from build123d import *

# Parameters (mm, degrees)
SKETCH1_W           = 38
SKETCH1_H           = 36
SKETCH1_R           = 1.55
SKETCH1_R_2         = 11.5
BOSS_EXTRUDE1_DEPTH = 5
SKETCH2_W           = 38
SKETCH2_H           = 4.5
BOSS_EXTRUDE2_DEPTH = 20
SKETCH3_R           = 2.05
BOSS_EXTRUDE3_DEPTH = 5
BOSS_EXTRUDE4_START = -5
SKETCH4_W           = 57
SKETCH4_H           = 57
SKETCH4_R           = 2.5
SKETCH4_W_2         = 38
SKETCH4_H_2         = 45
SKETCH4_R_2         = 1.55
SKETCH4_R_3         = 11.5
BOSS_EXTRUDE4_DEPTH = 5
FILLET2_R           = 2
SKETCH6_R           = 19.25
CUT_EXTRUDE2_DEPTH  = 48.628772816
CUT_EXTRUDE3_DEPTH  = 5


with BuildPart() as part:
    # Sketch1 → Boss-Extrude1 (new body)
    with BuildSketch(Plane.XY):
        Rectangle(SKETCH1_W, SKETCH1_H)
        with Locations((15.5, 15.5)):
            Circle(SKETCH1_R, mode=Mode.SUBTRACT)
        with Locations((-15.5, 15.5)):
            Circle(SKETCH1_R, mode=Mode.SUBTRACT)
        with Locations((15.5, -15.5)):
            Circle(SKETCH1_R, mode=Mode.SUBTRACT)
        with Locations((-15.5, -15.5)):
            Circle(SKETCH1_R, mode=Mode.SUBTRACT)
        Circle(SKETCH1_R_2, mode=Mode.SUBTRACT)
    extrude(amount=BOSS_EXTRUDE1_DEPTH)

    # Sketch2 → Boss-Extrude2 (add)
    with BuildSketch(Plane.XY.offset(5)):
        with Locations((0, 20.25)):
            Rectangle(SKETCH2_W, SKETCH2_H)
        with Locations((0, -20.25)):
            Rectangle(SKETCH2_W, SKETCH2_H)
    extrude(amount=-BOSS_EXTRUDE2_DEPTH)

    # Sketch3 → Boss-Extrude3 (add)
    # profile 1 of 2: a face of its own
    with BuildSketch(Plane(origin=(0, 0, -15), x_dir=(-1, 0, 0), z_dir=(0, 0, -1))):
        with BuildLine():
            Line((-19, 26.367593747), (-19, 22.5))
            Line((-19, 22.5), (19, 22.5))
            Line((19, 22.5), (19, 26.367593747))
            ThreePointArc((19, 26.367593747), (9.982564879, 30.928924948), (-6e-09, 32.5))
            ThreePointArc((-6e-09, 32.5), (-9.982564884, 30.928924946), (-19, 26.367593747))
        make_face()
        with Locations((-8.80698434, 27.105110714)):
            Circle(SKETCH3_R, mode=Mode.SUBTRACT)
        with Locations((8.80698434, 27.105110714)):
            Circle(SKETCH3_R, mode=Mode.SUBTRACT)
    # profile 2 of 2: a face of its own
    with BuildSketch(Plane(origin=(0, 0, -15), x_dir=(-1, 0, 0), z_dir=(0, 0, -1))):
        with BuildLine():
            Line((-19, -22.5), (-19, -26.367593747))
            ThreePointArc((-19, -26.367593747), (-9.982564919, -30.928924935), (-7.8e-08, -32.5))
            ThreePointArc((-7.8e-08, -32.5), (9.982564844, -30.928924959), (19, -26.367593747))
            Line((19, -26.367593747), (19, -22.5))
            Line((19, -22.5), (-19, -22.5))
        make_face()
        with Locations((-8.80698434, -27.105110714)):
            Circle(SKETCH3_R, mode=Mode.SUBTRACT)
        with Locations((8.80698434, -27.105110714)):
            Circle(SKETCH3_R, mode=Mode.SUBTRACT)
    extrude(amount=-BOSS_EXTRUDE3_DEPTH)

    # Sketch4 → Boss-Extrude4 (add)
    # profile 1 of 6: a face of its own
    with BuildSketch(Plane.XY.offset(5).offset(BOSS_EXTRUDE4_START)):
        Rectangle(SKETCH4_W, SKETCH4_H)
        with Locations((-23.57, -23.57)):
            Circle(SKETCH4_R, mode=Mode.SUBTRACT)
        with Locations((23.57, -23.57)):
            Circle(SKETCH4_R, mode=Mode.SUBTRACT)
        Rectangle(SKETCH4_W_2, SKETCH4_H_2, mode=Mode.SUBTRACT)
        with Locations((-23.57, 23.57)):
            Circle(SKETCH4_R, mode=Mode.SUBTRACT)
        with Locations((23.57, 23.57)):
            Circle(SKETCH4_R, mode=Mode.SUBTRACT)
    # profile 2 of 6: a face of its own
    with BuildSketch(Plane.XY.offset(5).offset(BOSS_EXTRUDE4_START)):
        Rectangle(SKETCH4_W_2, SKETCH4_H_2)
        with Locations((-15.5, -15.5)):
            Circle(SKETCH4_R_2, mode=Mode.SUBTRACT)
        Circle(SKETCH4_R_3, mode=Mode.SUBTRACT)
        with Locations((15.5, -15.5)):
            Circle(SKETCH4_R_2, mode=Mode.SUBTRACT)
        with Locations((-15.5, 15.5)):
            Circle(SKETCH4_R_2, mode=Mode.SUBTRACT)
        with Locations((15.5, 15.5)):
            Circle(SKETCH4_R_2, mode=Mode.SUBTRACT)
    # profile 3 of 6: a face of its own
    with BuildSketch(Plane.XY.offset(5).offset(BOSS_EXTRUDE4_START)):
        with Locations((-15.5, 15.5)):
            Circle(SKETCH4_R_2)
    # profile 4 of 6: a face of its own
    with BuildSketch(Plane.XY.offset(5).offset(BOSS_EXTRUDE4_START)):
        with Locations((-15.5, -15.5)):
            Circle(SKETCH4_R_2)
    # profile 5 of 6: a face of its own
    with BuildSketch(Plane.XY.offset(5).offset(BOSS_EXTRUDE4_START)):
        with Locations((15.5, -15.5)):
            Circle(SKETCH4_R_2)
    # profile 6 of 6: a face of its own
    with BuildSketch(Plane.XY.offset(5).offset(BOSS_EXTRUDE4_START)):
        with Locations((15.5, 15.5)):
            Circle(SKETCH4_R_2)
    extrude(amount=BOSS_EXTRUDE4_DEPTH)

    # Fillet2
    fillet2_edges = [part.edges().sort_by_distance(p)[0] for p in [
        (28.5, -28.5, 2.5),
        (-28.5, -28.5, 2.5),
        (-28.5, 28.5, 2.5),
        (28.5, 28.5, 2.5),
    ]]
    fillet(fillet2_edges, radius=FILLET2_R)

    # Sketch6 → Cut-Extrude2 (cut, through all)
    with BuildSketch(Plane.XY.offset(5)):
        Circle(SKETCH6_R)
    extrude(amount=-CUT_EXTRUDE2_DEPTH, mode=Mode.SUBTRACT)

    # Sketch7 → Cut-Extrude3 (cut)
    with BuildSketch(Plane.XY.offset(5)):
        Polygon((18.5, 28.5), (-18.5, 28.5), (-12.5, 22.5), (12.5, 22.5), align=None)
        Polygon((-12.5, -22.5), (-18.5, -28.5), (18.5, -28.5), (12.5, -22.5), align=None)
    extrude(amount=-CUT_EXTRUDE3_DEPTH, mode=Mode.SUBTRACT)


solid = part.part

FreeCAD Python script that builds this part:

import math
import FreeCAD as App
import Part
import Sketcher


def edges_at(feature, points):
    """Names of the edges that pass closest to the given points."""
    edges = feature.Shape.Edges
    near = lambda p: min(range(len(edges)), key=lambda i: edges[i].distToShape(Part.Vertex(*p))[0])
    return sorted({f"Edge{near(p) + 1}" for p in points})

doc = App.newDocument("Part")
body = doc.addObject("PartDesign::Body", "Body")

# Sketch on XY plane
sketch1 = body.newObject("Sketcher::SketchObject", "Sketch")
sketch1.AttachmentSupport = (doc.getObject("XY_Plane"), [""])
sketch1.MapMode = "FlatFace"
sketch1.addGeometry(Part.LineSegment(App.Vector(-19, 18, 0), App.Vector(-19, -18, 0)), False)
sketch1.addGeometry(Part.LineSegment(App.Vector(-19, -18, 0), App.Vector(19, -18, 0)), False)
sketch1.addGeometry(Part.LineSegment(App.Vector(19, -18, 0), App.Vector(19, 18, 0)), False)
sketch1.addGeometry(Part.LineSegment(App.Vector(19, 18, 0), App.Vector(-19, 18, 0)), False)
sketch1.addGeometry(Part.Circle(App.Vector(-15.5, -15.5, 0), App.Vector(0, 0, 1), 1.6), False)
sketch1.addGeometry(Part.Circle(App.Vector(15.5, -15.5, 0), App.Vector(0, 0, 1), 1.6), False)
sketch1.addGeometry(Part.Circle(App.Vector(-15.5, 15.5, 0), App.Vector(0, 0, 1), 1.6), False)
sketch1.addGeometry(Part.Circle(App.Vector(0, 0, 0), App.Vector(0, 0, 1), 11.5), False)
sketch1.addGeometry(Part.Circle(App.Vector(15.5, 15.5, 0), App.Vector(0, 0, 1), 1.6), False)
sketch1.addConstraint(Sketcher.Constraint("Coincident", 0, 2, 1, 1))
sketch1.addConstraint(Sketcher.Constraint("Coincident", 1, 2, 2, 1))
sketch1.addConstraint(Sketcher.Constraint("Coincident", 2, 2, 3, 1))
sketch1.addConstraint(Sketcher.Constraint("Coincident", 3, 2, 0, 1))
sketch1.addConstraint(Sketcher.Constraint("Vertical", 0))
sketch1.addConstraint(Sketcher.Constraint("Horizontal", 1))
sketch1.addConstraint(Sketcher.Constraint("Vertical", 2))
sketch1.addConstraint(Sketcher.Constraint("Horizontal", 3))
sketch1.addConstraint(Sketcher.Constraint("Coincident", 7, 3, -1, 1))
sketch1.addConstraint(Sketcher.Constraint("Equal", 4, 5))
sketch1.addConstraint(Sketcher.Constraint("Equal", 5, 6))
sketch1.addConstraint(Sketcher.Constraint("Equal", 6, 8))
sketch1.addConstraint(Sketcher.Constraint("Symmetric", 5, 3, 6, 3, -1, 1))
sketch1.addConstraint(Sketcher.Constraint("Symmetric", 4, 3, 8, 3, -1, 1))
sketch1.addConstraint(Sketcher.Constraint("Symmetric", 0, 2, 2, 2, -1, 1))
sketch1.addConstraint(Sketcher.Constraint("Symmetric", 4, 3, 5, 3, -2))
sketch1.addConstraint(Sketcher.Constraint("Diameter", 7, 23.0))
sketch1.addConstraint(Sketcher.Constraint("Diameter", 4, 3.1))
sketch1.addConstraint(Sketcher.Constraint("DistanceX", 1, 1, 1, 2, 38.0))
sketch1.addConstraint(Sketcher.Constraint("DistanceY", 0, 2, 0, 1, 36.0))
sketch1.addConstraint(Sketcher.Constraint("DistanceX", 4, 3, 5, 3, 31.0))
sketch1.addConstraint(Sketcher.Constraint("DistanceY", 4, 3, 6, 3, 31.0))
pad1 = body.newObject("PartDesign::Pad", "Pad")
pad1.Profile = sketch1
pad1.Length = 5

# Sketch on XY plane
sketch2 = body.newObject("Sketcher::SketchObject", "Sketch001")
sketch2.AttachmentSupport = (doc.getObject("XY_Plane"), [""])
sketch2.MapMode = "FlatFace"
sketch2.AttachmentOffset = App.Placement(App.Vector(0, 0, 5), App.Rotation())
sketch2.addGeometry(Part.LineSegment(App.Vector(-19, 22.5, 0), App.Vector(-19, 18, 0)), False)
sketch2.addGeometry(Part.LineSegment(App.Vector(-19, 18, 0), App.Vector(19, 18, 0)), False)
sketch2.addGeometry(Part.LineSegment(App.Vector(19, 18, 0), App.Vector(19, 22.5, 0)), False)
sketch2.addGeometry(Part.LineSegment(App.Vector(19, 22.5, 0), App.Vector(-19, 22.5, 0)), False)
sketch2.addGeometry(Part.LineSegment(App.Vector(-19, -18, 0), App.Vector(-19, -22.5, 0)), False)
sketch2.addGeometry(Part.LineSegment(App.Vector(-19, -22.5, 0), App.Vector(19, -22.5, 0)), False)
sketch2.addGeometry(Part.LineSegment(App.Vector(19, -22.5, 0), App.Vector(19, -18, 0)), False)
sketch2.addGeometry(Part.LineSegment(App.Vector(19, -18, 0), App.Vector(-19, -18, 0)), False)
sketch2.addConstraint(Sketcher.Constraint("Coincident", 0, 2, 1, 1))
sketch2.addConstraint(Sketcher.Constraint("Coincident", 1, 2, 2, 1))
sketch2.addConstraint(Sketcher.Constraint("Coincident", 2, 2, 3, 1))
sketch2.addConstraint(Sketcher.Constraint("Coincident", 3, 2, 0, 1))
sketch2.addConstraint(Sketcher.Constraint("Coincident", 4, 2, 5, 1))
sketch2.addConstraint(Sketcher.Constraint("Coincident", 5, 2, 6, 1))
sketch2.addConstraint(Sketcher.Constraint("Coincident", 6, 2, 7, 1))
sketch2.addConstraint(Sketcher.Constraint("Coincident", 7, 2, 4, 1))
sketch2.addConstraint(Sketcher.Constraint("Vertical", 0))
sketch2.addConstraint(Sketcher.Constraint("Horizontal", 1))
sketch2.addConstraint(Sketcher.Constraint("Vertical", 2))
sketch2.addConstraint(Sketcher.Constraint("Horizontal", 3))
sketch2.addConstraint(Sketcher.Constraint("Vertical", 4))
sketch2.addConstraint(Sketcher.Constraint("Horizontal", 5))
sketch2.addConstraint(Sketcher.Constraint("Vertical", 6))
sketch2.addConstraint(Sketcher.Constraint("Horizontal", 7))
sketch2.addConstraint(Sketcher.Constraint("Symmetric", 2, 2, 4, 2, -1, 1))
sketch2.addConstraint(Sketcher.Constraint("Symmetric", 0, 2, 6, 2, -1, 1))
sketch2.addConstraint(Sketcher.Constraint("Vertical", 3, 2, 4, 2))
sketch2.addConstraint(Sketcher.Constraint("DistanceX", 1, 1, 1, 2, 38.0))
sketch2.addConstraint(Sketcher.Constraint("DistanceY", 0, 2, 0, 1, 4.5))
sketch2.addConstraint(Sketcher.Constraint("DistanceY", -1, 1, 0, 2, 18.0))
pad2 = body.newObject("PartDesign::Pad", "Pad001")
pad2.Profile = sketch2
pad2.Length = 20
pad2.Reversed = True

# Sketch on XY plane
sketch3 = body.newObject("Sketcher::SketchObject", "Sketch002")
sketch3.AttachmentSupport = (doc.getObject("XY_Plane"), [""])
sketch3.MapMode = "FlatFace"
sketch3.AttachmentOffset = App.Placement(App.Vector(0, 0, -15), App.Rotation())
sketch3.addGeometry(Part.LineSegment(App.Vector(19, 26.4, 0), App.Vector(19, 22.5, 0)), False)
sketch3.addGeometry(Part.LineSegment(App.Vector(19, 22.5, 0), App.Vector(-19, 22.5, 0)), False)
sketch3.addGeometry(Part.LineSegment(App.Vector(-19, 22.5, 0), App.Vector(-19, 26.4, 0)), False)
sketch3.addGeometry(Part.ArcOfCircle(Part.Circle(App.Vector(0, 0, 0), App.Vector(0, 0, 1), 32.5), math.radians(90), math.radians(126)), False)
sketch3.addGeometry(Part.ArcOfCircle(Part.Circle(App.Vector(0, 0, 0), App.Vector(0, 0, 1), 32.5), math.radians(54), math.radians(90)), False)
sketch3.addGeometry(Part.Circle(App.Vector(8.8, 27.1, 0), App.Vector(0, 0, 1), 2), False)
sketch3.addGeometry(Part.Circle(App.Vector(-8.8, 27.1, 0), App.Vector(0, 0, 1), 2), False)
sketch3.addGeometry(Part.LineSegment(App.Vector(19, -22.5, 0), App.Vector(19, -26.4, 0)), False)
sketch3.addGeometry(Part.ArcOfCircle(Part.Circle(App.Vector(0, 0, 0), App.Vector(0, 0, 1), 32.5), math.radians(-90), math.radians(-54)), False)
sketch3.addGeometry(Part.ArcOfCircle(Part.Circle(App.Vector(0, 0, 0), App.Vector(0, 0, 1), 32.5), math.radians(-126), math.radians(-90)), False)
sketch3.addGeometry(Part.LineSegment(App.Vector(-19, -26.4, 0), App.Vector(-19, -22.5, 0)), False)
sketch3.addGeometry(Part.LineSegment(App.Vector(-19, -22.5, 0), App.Vector(19, -22.5, 0)), False)
sketch3.addGeometry(Part.Circle(App.Vector(8.8, -27.1, 0), App.Vector(0, 0, 1), 2), False)
sketch3.addGeometry(Part.Circle(App.Vector(-8.8, -27.1, 0), App.Vector(0, 0, 1), 2), False)
sketch3.addConstraint(Sketcher.Constraint("Coincident", 0, 2, 1, 1))
sketch3.addConstraint(Sketcher.Constraint("Coincident", 1, 2, 2, 1))
sketch3.addConstraint(Sketcher.Constraint("Coincident", 2, 2, 3, 2))
sketch3.addConstraint(Sketcher.Constraint("Tangent", 3, 1, 4, 2))
sketch3.addConstraint(Sketcher.Constraint("Coincident", 4, 1, 0, 1))
sketch3.addConstraint(Sketcher.Constraint("Coincident", 7, 2, 8, 2))
sketch3.addConstraint(Sketcher.Constraint("Tangent", 8, 1, 9, 2))
sketch3.addConstraint(Sketcher.Constraint("Coincident", 9, 1, 10, 1))
sketch3.addConstraint(Sketcher.Constraint("Coincident", 10, 2, 11, 1))
sketch3.addConstraint(Sketcher.Constraint("Coincident", 11, 2, 7, 1))
sketch3.addConstraint(Sketcher.Constraint("Vertical", 0))
sketch3.addConstraint(Sketcher.Constraint("Horizontal", 1))
sketch3.addConstraint(Sketcher.Constraint("Vertical", 2))
sketch3.addConstraint(Sketcher.Constraint("Vertical", 7))
sketch3.addConstraint(Sketcher.Constraint("Vertical", 10))
sketch3.addConstraint(Sketcher.Constraint("Horizontal", 11))
sketch3.addConstraint(Sketcher.Constraint("Coincident", 3, 3, -1, 1))
sketch3.addConstraint(Sketcher.Constraint("Coincident", 8, 3, -1, 1))
sketch3.addConstraint(Sketcher.Constraint("Equal", 3, 4))
sketch3.addConstraint(Sketcher.Constraint("Equal", 5, 6))
sketch3.addConstraint(Sketcher.Constraint("Equal", 4, 8))
sketch3.addConstraint(Sketcher.Constraint("Equal", 8, 9))
sketch3.addConstraint(Sketcher.Constraint("Equal", 6, 12))
sketch3.addConstraint(Sketcher.Constraint("Equal", 12, 13))
sketch3.addConstraint(Sketcher.Constraint("Symmetric", 6, 3, 12, 3, -1, 1))
sketch3.addConstraint(Sketcher.Constraint("Symmetric", 5, 3, 13, 3, -1, 1))
sketch3.addConstraint(Sketcher.Constraint("Symmetric", 0, 2, 10, 2, -1, 1))
sketch3.addConstraint(Sketcher.Constraint("Symmetric", 5, 3, 6, 3, -2))
sketch3.addConstraint(Sketcher.Constraint("PointOnObject", 3, 1, -2))
sketch3.addConstraint(Sketcher.Constraint("PointOnObject", 8, 1, -2))
sketch3.addConstraint(Sketcher.Constraint("Horizontal", 2, 2, 4, 1))
sketch3.addConstraint(Sketcher.Constraint("Horizontal", 7, 2, 9, 1))
sketch3.addConstraint(Sketcher.Constraint("Diameter", 5, 4.1))
sketch3.addConstraint(Sketcher.Constraint("Radius", 3, 32.5))
sketch3.addConstraint(Sketcher.Constraint("DistanceX", 1, 2, 1, 1, 38.0))
sketch3.addConstraint(Sketcher.Constraint("DistanceY", 0, 2, 3, 1, 10.0))
sketch3.addConstraint(Sketcher.Constraint("DistanceY", -1, 1, 5, 3, 27.105111))
sketch3.addConstraint(Sketcher.Constraint("DistanceX", 6, 3, 5, 3, 17.613969))
pad3 = body.newObject("PartDesign::Pad", "Pad002")
pad3.Profile = sketch3
pad3.Length = 5

# Sketch on XY plane
sketch4 = body.newObject("Sketcher::SketchObject", "Sketch003")
sketch4.AttachmentSupport = (doc.getObject("XY_Plane"), [""])
sketch4.MapMode = "FlatFace"
sketch4.addGeometry(Part.LineSegment(App.Vector(-28.5, 28.5, 0), App.Vector(-28.5, -28.5, 0)), False)
sketch4.addGeometry(Part.LineSegment(App.Vector(-28.5, -28.5, 0), App.Vector(28.5, -28.5, 0)), False)
sketch4.addGeometry(Part.LineSegment(App.Vector(28.5, -28.5, 0), App.Vector(28.5, 28.5, 0)), False)
sketch4.addGeometry(Part.LineSegment(App.Vector(28.5, 28.5, 0), App.Vector(-28.5, 28.5, 0)), False)
sketch4.addGeometry(Part.Circle(App.Vector(-23.6, -23.6, 0), App.Vector(0, 0, 1), 2.5), False)
sketch4.addGeometry(Part.Circle(App.Vector(23.6, -23.6, 0), App.Vector(0, 0, 1), 2.5), False)
sketch4.addGeometry(Part.Circle(App.Vector(-23.6, 23.6, 0), App.Vector(0, 0, 1), 2.5), False)
sketch4.addGeometry(Part.Circle(App.Vector(23.6, 23.6, 0), App.Vector(0, 0, 1), 2.5), False)
sketch4.addGeometry(Part.Circle(App.Vector(0, 0, 0), App.Vector(0, 0, 1), 11.5), False)
sketch4.addConstraint(Sketcher.Constraint("Coincident", 0, 2, 1, 1))
sketch4.addConstraint(Sketcher.Constraint("Coincident", 1, 2, 2, 1))
sketch4.addConstraint(Sketcher.Constraint("Coincident", 2, 2, 3, 1))
sketch4.addConstraint(Sketcher.Constraint("Coincident", 3, 2, 0, 1))
sketch4.addConstraint(Sketcher.Constraint("Vertical", 0))
sketch4.addConstraint(Sketcher.Constraint("Horizontal", 1))
sketch4.addConstraint(Sketcher.Constraint("Vertical", 2))
sketch4.addConstraint(Sketcher.Constraint("Horizontal", 3))
sketch4.addConstraint(Sketcher.Constraint("Coincident", 8, 3, -1, 1))
sketch4.addConstraint(Sketcher.Constraint("Equal", 4, 5))
sketch4.addConstraint(Sketcher.Constraint("Equal", 5, 6))
sketch4.addConstraint(Sketcher.Constraint("Equal", 6, 7))
sketch4.addConstraint(Sketcher.Constraint("Symmetric", 5, 3, 6, 3, -1, 1))
sketch4.addConstraint(Sketcher.Constraint("Symmetric", 4, 3, 7, 3, -1, 1))
sketch4.addConstraint(Sketcher.Constraint("Symmetric", 0, 2, 2, 2, -1, 1))
sketch4.addConstraint(Sketcher.Constraint("Symmetric", 4, 3, 5, 3, -2))
sketch4.addConstraint(Sketcher.Constraint("Equal", 3, 0))
sketch4.addConstraint(Sketcher.Constraint("Diameter", 4, 5.0))
sketch4.addConstraint(Sketcher.Constraint("Diameter", 8, 23.0))
sketch4.addConstraint(Sketcher.Constraint("DistanceX", 1, 1, 1, 2, 57.0))
sketch4.addConstraint(Sketcher.Constraint("DistanceX", 4, 3, -1, 1, 23.57))
sketch4.addConstraint(Sketcher.Constraint("DistanceY", 4, 3, -1, 1, 23.57))
pad4 = body.newObject("PartDesign::Pad", "Pad003")
pad4.Profile = sketch4
pad4.Length = 5
doc.recompute()

fillet = body.newObject("PartDesign::Fillet", "Fillet")
fillet.Base = (pad4, edges_at(pad4, [
    (28.5, -28.5, 2.5),
    (-28.5, -28.5, 2.5),
    (-28.5, 28.5, 2.5),
    (28.5, 28.5, 2.5),
]))
fillet.Radius = 2

# Sketch on XY plane
sketch5 = body.newObject("Sketcher::SketchObject", "Sketch004")
sketch5.AttachmentSupport = (doc.getObject("XY_Plane"), [""])
sketch5.MapMode = "FlatFace"
sketch5.AttachmentOffset = App.Placement(App.Vector(0, 0, 5), App.Rotation())
sketch5.addGeometry(Part.Circle(App.Vector(0, 0, 0), App.Vector(0, 0, 1), 19), False)
sketch5.addConstraint(Sketcher.Constraint("Coincident", 0, 3, -1, 1))
sketch5.addConstraint(Sketcher.Constraint("Diameter", 0, 38.5))
pocket1 = body.newObject("PartDesign::Pocket", "Pocket")
pocket1.Profile = sketch5
pocket1.Type = "ThroughAll"

# Sketch on XY plane
sketch6 = body.newObject("Sketcher::SketchObject", "Sketch005")
sketch6.AttachmentSupport = (doc.getObject("XY_Plane"), [""])
sketch6.MapMode = "FlatFace"
sketch6.AttachmentOffset = App.Placement(App.Vector(0, 0, 5), App.Rotation())
sketch6.addGeometry(Part.LineSegment(App.Vector(18, 28, 0), App.Vector(-18, 28, 0)), False)
sketch6.addGeometry(Part.LineSegment(App.Vector(-18, 28, 0), App.Vector(-12, 22, 0)), False)
sketch6.addGeometry(Part.LineSegment(App.Vector(-12, 22, 0), App.Vector(12, 22, 0)), False)
sketch6.addGeometry(Part.LineSegment(App.Vector(12, 22, 0), App.Vector(18, 28, 0)), False)
sketch6.addGeometry(Part.LineSegment(App.Vector(-12, -22, 0), App.Vector(-18, -28, 0)), False)
sketch6.addGeometry(Part.LineSegment(App.Vector(-18, -28, 0), App.Vector(18, -28, 0)), False)
sketch6.addGeometry(Part.LineSegment(App.Vector(18, -28, 0), App.Vector(12, -22, 0)), False)
sketch6.addGeometry(Part.LineSegment(App.Vector(12, -22, 0), App.Vector(-12, -22, 0)), False)
sketch6.addConstraint(Sketcher.Constraint("Coincident", 0, 2, 1, 1))
sketch6.addConstraint(Sketcher.Constraint("Coincident", 1, 2, 2, 1))
sketch6.addConstraint(Sketcher.Constraint("Coincident", 2, 2, 3, 1))
sketch6.addConstraint(Sketcher.Constraint("Coincident", 3, 2, 0, 1))
sketch6.addConstraint(Sketcher.Constraint("Coincident", 4, 2, 5, 1))
sketch6.addConstraint(Sketcher.Constraint("Coincident", 5, 2, 6, 1))
sketch6.addConstraint(Sketcher.Constraint("Coincident", 6, 2, 7, 1))
sketch6.addConstraint(Sketcher.Constraint("Coincident", 7, 2, 4, 1))
sketch6.addConstraint(Sketcher.Constraint("Horizontal", 0))
sketch6.addConstraint(Sketcher.Constraint("Horizontal", 2))
sketch6.addConstraint(Sketcher.Constraint("Horizontal", 5))
sketch6.addConstraint(Sketcher.Constraint("Horizontal", 7))
sketch6.addConstraint(Sketcher.Constraint("Symmetric", 3, 2, 4, 2, -1, 1))
sketch6.addConstraint(Sketcher.Constraint("Symmetric", 1, 2, 6, 2, -1, 1))
sketch6.addConstraint(Sketcher.Constraint("Perpendicular", 1, 3))
sketch6.addConstraint(Sketcher.Constraint("Parallel", 3, 4))
sketch6.addConstraint(Sketcher.Constraint("Perpendicular", 4, 6))
sketch6.addConstraint(Sketcher.Constraint("Vertical", 0, 2, 4, 2))
sketch6.addConstraint(Sketcher.Constraint("Vertical", 2, 2, 6, 2))
sketch6.addConstraint(Sketcher.Constraint("DistanceX", 0, 2, 0, 1, 37.0))
sketch6.addConstraint(Sketcher.Constraint("DistanceX", 2, 1, 2, 2, 25.0))
sketch6.addConstraint(Sketcher.Constraint("DistanceY", 4, 2, 1, 2, 51.0))
pocket2 = body.newObject("PartDesign::Pocket", "Pocket001")
pocket2.Profile = sketch6
pocket2.Length = 5

doc.recompute()
